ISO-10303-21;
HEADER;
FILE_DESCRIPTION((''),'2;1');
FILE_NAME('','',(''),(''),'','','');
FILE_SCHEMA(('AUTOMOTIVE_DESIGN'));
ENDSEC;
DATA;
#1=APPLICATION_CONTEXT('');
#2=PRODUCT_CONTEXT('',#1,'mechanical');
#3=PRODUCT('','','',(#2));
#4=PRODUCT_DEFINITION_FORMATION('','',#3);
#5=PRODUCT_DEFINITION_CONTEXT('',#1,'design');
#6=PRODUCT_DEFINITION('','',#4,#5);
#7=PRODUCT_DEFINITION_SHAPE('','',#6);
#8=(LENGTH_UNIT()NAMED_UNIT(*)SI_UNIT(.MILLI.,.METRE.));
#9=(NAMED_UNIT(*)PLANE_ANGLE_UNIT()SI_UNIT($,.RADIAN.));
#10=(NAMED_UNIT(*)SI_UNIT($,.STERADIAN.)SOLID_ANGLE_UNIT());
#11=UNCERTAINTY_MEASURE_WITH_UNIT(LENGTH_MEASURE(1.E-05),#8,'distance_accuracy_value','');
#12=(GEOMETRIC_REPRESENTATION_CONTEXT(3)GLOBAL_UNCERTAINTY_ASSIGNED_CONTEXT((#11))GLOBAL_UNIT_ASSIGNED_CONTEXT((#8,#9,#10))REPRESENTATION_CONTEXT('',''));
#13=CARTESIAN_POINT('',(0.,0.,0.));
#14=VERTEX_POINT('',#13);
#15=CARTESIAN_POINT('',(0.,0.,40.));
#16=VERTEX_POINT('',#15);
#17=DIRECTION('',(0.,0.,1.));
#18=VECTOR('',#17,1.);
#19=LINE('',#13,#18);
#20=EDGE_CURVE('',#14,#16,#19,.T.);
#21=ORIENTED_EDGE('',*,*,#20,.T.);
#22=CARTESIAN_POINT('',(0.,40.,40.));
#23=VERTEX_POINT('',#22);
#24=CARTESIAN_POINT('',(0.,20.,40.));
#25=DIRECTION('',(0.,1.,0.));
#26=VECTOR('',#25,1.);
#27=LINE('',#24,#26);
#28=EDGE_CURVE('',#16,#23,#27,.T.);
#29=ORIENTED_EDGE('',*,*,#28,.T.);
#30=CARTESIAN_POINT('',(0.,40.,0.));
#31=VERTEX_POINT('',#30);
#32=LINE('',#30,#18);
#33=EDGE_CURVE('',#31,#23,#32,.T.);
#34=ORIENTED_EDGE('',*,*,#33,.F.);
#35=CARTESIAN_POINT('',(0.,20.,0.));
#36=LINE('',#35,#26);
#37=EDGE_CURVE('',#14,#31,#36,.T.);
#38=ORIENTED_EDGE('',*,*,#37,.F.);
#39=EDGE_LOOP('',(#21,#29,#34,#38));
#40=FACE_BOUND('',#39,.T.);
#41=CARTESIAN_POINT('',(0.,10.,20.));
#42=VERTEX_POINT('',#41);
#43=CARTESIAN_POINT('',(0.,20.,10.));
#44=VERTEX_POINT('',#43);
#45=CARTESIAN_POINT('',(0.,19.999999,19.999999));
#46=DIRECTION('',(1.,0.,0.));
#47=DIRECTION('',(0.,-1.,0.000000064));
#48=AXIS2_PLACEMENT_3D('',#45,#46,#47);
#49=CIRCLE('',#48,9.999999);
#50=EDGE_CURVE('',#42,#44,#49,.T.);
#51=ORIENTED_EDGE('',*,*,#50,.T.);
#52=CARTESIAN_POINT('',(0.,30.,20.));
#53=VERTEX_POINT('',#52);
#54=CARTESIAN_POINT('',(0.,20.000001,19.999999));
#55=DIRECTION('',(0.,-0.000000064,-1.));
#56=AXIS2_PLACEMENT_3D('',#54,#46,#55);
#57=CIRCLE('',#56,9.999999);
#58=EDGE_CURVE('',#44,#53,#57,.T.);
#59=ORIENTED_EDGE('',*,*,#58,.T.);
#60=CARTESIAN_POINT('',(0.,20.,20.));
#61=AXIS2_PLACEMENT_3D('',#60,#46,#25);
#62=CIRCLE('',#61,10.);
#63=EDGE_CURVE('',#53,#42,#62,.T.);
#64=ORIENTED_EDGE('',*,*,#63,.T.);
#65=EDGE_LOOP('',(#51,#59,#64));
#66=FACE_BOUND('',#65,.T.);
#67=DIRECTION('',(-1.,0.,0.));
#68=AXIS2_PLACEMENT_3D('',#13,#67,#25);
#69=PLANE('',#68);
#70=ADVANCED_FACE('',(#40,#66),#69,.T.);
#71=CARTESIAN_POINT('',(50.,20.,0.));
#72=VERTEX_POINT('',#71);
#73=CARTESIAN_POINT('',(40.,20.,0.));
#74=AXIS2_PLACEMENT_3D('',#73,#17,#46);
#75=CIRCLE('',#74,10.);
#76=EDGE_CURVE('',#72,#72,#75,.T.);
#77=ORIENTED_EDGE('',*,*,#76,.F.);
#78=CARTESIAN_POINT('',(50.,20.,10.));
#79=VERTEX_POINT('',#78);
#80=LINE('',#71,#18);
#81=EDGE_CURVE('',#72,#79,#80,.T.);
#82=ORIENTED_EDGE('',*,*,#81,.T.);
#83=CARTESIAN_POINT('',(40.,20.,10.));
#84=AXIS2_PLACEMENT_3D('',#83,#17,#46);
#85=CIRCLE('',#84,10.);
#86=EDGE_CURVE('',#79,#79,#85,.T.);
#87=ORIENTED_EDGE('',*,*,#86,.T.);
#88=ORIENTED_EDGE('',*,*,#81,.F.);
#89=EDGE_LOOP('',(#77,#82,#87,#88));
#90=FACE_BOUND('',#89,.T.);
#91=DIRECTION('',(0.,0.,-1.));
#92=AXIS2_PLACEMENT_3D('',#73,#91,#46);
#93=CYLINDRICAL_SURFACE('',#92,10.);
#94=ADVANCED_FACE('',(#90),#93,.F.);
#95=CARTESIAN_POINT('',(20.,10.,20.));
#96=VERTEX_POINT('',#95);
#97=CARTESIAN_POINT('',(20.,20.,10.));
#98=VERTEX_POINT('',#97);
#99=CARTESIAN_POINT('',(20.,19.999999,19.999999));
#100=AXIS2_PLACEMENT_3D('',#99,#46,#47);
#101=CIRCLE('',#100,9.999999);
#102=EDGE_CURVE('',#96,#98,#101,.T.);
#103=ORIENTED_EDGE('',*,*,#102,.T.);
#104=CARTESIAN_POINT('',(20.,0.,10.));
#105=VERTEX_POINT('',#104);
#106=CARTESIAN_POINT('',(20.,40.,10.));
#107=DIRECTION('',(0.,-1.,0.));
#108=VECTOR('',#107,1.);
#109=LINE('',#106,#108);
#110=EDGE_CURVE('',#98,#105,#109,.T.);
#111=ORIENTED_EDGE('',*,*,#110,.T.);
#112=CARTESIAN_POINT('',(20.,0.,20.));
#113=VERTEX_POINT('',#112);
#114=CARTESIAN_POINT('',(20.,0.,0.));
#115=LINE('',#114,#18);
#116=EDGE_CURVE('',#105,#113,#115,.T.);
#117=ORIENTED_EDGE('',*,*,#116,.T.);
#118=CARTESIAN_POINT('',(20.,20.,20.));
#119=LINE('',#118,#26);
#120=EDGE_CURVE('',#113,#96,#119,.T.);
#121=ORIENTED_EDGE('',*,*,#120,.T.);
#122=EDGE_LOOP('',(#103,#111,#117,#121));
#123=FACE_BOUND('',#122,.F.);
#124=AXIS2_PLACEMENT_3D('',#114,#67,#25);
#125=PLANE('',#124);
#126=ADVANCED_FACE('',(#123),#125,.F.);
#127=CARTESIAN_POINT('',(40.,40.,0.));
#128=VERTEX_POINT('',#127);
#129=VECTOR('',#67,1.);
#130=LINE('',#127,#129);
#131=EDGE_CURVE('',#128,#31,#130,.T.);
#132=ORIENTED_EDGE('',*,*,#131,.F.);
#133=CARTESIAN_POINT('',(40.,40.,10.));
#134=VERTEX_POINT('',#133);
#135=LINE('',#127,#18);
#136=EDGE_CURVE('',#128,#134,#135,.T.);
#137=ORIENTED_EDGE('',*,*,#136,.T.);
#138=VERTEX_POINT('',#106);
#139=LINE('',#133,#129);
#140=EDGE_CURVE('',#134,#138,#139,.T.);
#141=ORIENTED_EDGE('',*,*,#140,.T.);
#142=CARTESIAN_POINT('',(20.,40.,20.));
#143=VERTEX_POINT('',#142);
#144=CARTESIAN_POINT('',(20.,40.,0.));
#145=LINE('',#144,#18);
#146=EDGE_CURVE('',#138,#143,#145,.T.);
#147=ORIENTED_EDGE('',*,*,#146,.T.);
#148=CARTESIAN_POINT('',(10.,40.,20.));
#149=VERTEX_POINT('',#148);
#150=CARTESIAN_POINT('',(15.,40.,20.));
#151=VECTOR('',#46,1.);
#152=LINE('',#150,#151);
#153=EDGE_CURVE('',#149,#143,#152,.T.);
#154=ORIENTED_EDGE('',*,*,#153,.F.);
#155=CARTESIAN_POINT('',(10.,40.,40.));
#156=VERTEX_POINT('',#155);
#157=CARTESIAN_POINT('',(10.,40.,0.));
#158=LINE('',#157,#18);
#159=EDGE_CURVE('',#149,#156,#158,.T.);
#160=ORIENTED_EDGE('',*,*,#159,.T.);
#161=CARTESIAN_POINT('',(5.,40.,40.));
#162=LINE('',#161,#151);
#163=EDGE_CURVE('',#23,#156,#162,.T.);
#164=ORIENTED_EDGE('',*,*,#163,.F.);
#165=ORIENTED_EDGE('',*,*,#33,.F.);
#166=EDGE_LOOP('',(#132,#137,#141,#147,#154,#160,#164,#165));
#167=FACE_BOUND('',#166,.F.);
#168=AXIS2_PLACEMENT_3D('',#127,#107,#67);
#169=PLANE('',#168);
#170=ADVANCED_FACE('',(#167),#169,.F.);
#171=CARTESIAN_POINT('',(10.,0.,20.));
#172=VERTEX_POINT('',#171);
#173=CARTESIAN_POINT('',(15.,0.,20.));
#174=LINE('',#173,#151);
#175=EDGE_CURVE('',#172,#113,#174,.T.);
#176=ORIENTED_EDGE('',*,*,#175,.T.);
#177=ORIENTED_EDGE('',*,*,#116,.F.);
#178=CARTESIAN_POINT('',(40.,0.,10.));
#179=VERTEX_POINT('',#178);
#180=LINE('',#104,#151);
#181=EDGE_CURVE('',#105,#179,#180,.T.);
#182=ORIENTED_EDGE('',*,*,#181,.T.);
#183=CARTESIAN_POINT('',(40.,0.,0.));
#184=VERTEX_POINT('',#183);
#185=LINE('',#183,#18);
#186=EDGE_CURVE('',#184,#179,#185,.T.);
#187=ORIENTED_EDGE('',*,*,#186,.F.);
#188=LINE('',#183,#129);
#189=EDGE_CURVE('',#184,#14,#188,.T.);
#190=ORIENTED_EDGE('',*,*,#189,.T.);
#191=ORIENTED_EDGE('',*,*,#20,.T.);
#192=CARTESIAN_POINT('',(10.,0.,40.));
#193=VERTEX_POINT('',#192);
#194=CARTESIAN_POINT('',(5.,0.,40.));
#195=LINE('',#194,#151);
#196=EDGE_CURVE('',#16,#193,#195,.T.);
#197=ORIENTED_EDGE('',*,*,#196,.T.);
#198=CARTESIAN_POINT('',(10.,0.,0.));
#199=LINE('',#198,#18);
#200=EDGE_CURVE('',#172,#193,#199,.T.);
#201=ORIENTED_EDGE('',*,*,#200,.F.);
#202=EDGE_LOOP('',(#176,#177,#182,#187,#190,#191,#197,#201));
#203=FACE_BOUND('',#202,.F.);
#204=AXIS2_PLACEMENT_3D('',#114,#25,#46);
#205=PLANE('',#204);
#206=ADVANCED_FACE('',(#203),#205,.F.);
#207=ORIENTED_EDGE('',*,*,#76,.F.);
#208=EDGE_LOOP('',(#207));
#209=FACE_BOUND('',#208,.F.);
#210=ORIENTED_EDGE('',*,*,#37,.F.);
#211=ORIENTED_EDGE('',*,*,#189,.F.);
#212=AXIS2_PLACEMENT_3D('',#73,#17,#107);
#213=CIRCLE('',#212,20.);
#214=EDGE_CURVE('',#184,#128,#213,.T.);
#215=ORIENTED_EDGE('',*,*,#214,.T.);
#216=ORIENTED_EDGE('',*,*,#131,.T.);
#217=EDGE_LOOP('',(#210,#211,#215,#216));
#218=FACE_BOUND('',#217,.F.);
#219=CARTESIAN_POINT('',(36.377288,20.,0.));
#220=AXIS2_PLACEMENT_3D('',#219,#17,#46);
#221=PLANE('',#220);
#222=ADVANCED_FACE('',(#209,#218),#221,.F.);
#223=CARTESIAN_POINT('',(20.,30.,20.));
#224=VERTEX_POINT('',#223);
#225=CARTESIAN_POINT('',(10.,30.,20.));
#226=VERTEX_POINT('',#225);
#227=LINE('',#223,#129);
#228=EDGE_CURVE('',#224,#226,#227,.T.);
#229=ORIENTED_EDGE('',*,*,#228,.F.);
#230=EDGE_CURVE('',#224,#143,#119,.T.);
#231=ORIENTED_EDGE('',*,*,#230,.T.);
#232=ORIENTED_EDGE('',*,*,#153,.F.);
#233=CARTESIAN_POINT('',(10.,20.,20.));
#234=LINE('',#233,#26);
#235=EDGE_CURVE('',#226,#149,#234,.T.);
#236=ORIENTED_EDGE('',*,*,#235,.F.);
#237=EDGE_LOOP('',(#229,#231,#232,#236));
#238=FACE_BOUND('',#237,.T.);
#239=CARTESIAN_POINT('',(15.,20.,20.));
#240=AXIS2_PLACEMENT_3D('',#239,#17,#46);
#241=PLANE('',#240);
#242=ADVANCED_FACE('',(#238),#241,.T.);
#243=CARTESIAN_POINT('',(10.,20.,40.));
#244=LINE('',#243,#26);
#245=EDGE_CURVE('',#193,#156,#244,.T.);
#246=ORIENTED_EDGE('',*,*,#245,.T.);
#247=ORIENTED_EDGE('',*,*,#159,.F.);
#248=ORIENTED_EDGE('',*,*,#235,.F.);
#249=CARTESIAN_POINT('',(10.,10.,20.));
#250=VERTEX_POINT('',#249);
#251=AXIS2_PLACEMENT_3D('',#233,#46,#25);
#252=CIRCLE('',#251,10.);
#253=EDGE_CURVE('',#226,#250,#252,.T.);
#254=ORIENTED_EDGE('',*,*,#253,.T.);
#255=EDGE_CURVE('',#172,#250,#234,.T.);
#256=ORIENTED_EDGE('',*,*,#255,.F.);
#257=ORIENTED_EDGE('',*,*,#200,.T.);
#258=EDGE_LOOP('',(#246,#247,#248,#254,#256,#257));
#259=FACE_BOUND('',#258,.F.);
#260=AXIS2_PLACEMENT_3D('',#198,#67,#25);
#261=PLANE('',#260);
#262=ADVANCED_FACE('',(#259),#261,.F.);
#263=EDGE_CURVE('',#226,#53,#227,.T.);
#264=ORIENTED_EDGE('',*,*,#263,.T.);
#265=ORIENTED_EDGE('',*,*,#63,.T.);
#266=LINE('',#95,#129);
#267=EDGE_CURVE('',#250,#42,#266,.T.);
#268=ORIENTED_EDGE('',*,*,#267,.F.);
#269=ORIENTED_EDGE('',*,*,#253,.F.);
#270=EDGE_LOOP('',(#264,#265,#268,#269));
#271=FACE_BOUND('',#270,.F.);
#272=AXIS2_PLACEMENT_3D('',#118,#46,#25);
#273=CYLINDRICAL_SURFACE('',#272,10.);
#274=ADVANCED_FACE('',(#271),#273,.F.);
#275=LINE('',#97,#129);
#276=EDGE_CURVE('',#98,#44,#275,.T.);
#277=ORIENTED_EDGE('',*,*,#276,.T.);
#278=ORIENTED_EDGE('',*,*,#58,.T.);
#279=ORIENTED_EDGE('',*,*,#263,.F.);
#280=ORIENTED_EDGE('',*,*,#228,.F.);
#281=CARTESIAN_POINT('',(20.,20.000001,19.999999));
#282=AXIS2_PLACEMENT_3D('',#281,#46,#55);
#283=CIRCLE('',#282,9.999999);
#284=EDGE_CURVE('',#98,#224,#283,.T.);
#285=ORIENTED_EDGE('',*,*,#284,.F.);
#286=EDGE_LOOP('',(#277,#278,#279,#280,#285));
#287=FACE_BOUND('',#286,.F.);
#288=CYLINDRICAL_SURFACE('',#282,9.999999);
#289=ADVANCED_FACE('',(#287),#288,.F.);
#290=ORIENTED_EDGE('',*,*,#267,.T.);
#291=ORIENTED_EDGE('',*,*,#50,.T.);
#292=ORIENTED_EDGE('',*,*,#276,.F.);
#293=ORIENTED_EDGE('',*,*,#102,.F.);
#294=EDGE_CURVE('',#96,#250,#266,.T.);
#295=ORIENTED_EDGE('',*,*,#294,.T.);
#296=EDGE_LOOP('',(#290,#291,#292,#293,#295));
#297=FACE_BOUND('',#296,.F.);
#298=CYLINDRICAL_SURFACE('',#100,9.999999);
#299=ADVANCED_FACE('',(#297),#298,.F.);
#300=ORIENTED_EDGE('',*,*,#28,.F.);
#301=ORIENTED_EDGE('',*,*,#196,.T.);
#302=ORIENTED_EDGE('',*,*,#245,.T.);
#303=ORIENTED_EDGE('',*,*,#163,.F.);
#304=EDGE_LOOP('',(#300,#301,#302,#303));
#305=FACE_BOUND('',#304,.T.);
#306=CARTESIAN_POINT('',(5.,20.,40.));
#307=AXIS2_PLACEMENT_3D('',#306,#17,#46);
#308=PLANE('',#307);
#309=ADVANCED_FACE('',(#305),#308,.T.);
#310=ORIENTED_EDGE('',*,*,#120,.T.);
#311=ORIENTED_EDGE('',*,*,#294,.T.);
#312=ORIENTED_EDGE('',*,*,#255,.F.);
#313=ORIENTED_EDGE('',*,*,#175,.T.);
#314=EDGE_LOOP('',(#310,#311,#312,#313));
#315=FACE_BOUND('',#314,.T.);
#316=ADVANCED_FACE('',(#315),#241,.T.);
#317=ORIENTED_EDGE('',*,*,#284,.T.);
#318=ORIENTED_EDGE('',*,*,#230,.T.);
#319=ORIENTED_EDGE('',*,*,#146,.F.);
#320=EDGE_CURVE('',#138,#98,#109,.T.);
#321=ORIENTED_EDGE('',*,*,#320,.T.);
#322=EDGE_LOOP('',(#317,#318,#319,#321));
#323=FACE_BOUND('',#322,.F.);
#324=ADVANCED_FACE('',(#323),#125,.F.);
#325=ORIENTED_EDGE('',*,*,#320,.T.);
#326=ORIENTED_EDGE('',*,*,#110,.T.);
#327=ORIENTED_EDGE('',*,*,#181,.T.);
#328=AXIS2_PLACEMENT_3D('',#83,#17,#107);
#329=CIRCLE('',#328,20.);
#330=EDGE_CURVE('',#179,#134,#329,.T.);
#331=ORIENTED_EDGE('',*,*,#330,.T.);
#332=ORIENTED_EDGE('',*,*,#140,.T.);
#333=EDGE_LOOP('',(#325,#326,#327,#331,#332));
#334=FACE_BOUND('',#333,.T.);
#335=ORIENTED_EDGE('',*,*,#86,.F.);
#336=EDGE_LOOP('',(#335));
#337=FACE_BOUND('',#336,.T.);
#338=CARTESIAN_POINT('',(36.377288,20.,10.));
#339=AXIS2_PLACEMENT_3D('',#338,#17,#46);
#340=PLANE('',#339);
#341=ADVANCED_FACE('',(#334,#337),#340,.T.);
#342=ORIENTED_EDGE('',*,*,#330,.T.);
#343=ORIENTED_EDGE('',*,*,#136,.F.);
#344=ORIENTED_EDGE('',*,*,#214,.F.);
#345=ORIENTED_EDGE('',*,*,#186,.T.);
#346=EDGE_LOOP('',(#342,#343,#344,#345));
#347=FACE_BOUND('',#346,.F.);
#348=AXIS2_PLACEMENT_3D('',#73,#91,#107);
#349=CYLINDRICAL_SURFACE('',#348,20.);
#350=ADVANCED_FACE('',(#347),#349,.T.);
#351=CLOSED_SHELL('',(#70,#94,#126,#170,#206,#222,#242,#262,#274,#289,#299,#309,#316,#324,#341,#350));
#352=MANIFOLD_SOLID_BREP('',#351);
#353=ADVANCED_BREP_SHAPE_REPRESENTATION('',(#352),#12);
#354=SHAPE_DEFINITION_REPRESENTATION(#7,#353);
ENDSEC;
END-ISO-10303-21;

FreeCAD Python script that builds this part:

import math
import FreeCAD as App
import Part
import Sketcher

V = App.Vector

doc = App.newDocument("Part")
body = doc.addObject("PartDesign::Body", "Body")

sketch1 = body.newObject("Sketcher::SketchObject", "Sketch")
sketch1.AttachmentSupport = (doc.getObject("XY_Plane"), [""])
sketch1.MapMode = "FlatFace"
sketch1.addGeometry([
    Part.LineSegment(V(0, 40, 0), V(0, 0, 0)),
    Part.LineSegment(V(0, 0, 0), V(10, 0, 0)),
    Part.LineSegment(V(10, 0, 0), V(10, 40, 0)),
    Part.LineSegment(V(10, 40, 0), V(0, 40, 0)),
], False)
sketch1.addConstraint([
    Sketcher.Constraint("Coincident", 0, 2, 1, 1),
    Sketcher.Constraint("Coincident", 1, 2, 2, 1),
    Sketcher.Constraint("Coincident", 2, 2, 3, 1),
    Sketcher.Constraint("Coincident", 3, 2, 0, 1),
    Sketcher.Constraint("Vertical", 0),
    Sketcher.Constraint("Horizontal", 1),
    Sketcher.Constraint("Vertical", 2),
    Sketcher.Constraint("Horizontal", 3),
    Sketcher.Constraint("Coincident", 0, 2, -1, 1),
    Sketcher.Constraint("DistanceX", 1, 1, 1, 2, 10.0),
    Sketcher.Constraint("DistanceY", 0, 2, 0, 1, 40.0),
])
pad1 = body.newObject("PartDesign::Pad", "Pad")
pad1.Profile = sketch1
pad1.Length = 40

sketch2 = body.newObject("Sketcher::SketchObject", "Sketch001")
sketch2.AttachmentSupport = (doc.getObject("XY_Plane"), [""])
sketch2.MapMode = "FlatFace"
sketch2.addGeometry([
    Part.LineSegment(V(10, 40, 0), V(10, 0, 0)),
    Part.LineSegment(V(10, 0, 0), V(20, 0, 0)),
    Part.LineSegment(V(20, 0, 0), V(20, 40, 0)),
    Part.LineSegment(V(20, 40, 0), V(10, 40, 0)),
], False)
sketch2.addConstraint([
    Sketcher.Constraint("Coincident", 0, 2, 1, 1),
    Sketcher.Constraint("Coincident", 1, 2, 2, 1),
    Sketcher.Constraint("Coincident", 2, 2, 3, 1),
    Sketcher.Constraint("Coincident", 3, 2, 0, 1),
    Sketcher.Constraint("Vertical", 0),
    Sketcher.Constraint("Horizontal", 1),
    Sketcher.Constraint("Vertical", 2),
    Sketcher.Constraint("Horizontal", 3),
    Sketcher.Constraint("PointOnObject", 0, 2, -1),
    Sketcher.Constraint("DistanceX", 1, 1, 1, 2, 10.0),
    Sketcher.Constraint("DistanceY", 0, 2, 0, 1, 40.0),
    Sketcher.Constraint("DistanceX", -1, 1, 0, 2, 10.0),
])
pad2 = body.newObject("PartDesign::Pad", "Pad001")
pad2.Profile = sketch2
pad2.Length = 20

sketch3 = body.newObject("Sketcher::SketchObject", "Sketch002")
sketch3.AttachmentSupport = (doc.getObject("XY_Plane"), [""])
sketch3.MapMode = "FlatFace"
sketch3.addGeometry([
    Part.LineSegment(V(20, 40, 0), V(20, 0, 0)),
    Part.LineSegment(V(20, 0, 0), V(40, 0, 0)),
    Part.ArcOfCircle(Part.Circle(V(40, 20, 0), V(0, 0, 1), 20), math.radians(-90), math.radians(90)),
    Part.LineSegment(V(40, 40, 0), V(20, 40, 0)),
    Part.Circle(V(40, 20, 0), V(0, 0, 1), 10),
], False)
sketch3.addConstraint([
    Sketcher.Constraint("Coincident", 0, 2, 1, 1),
    Sketcher.Constraint("Tangent", 1, 2, 2, 1),
    Sketcher.Constraint("Tangent", 2, 2, 3, 1),
    Sketcher.Constraint("Coincident", 3, 2, 0, 1),
    Sketcher.Constraint("Vertical", 0),
    Sketcher.Constraint("Horizontal", 1),
    Sketcher.Constraint("Horizontal", 3),
    Sketcher.Constraint("Coincident", 4, 3, 2, 3),
    Sketcher.Constraint("PointOnObject", 0, 2, -1),
    Sketcher.Constraint("Diameter", 4, 20.0),
    Sketcher.Constraint("Radius", 2, 20.0),
    Sketcher.Constraint("DistanceX", 1, 1, 1, 2, 20.0),
    Sketcher.Constraint("DistanceX", -1, 1, 2, 3, 40.0),
])
pad3 = body.newObject("PartDesign::Pad", "Pad002")
pad3.Profile = sketch3
pad3.Length = 10

sketch4 = body.newObject("Sketcher::SketchObject", "Sketch003")
sketch4.AttachmentSupport = (doc.getObject("YZ_Plane"), [""])
sketch4.MapMode = "FlatFace"
sketch4.AttachmentOffset = App.Placement(V(0, 0, 20), App.Rotation())
sketch4.addGeometry([
    Part.ArcOfCircle(Part.Circle(V(20.000001, 19.999999, 0), V(0, 0, 1), 9.999999), math.radians(-90.000004), math.radians(0.000004)),
    Part.ArcOfCircle(Part.Circle(V(20, 20, 0), V(0, 0, 1), 10), math.radians(0), math.radians(180)),
    Part.ArcOfCircle(Part.Circle(V(19.999999, 19.999999, 0), V(0, 0, 1), 9.999999), math.radians(179.999996), math.radians(270.000004)),
], False)
sketch4.addConstraint([
    Sketcher.Constraint("Tangent", 0, 2, 1, 1),
    Sketcher.Constraint("Tangent", 1, 2, 2, 1),
    Sketcher.Constraint("Tangent", 2, 2, 0, 1),
    Sketcher.Constraint("Horizontal", 2, 3, 0, 2),
    Sketcher.Constraint("Horizontal", 0, 2, 1, 2),
    Sketcher.Constraint("Vertical", 1, 3, 2, 2),
    Sketcher.Constraint("Radius", 0, 9.999999),
    Sketcher.Constraint("DistanceX", -1, 1, 0, 3, 20.000001),
    Sketcher.Constraint("DistanceY", -1, 1, 0, 3, 19.999999),
])
pocket1 = body.newObject("PartDesign::Pocket", "Pocket")
pocket1.Profile = sketch4
pocket1.Type = "ThroughAll"

doc.recompute()
